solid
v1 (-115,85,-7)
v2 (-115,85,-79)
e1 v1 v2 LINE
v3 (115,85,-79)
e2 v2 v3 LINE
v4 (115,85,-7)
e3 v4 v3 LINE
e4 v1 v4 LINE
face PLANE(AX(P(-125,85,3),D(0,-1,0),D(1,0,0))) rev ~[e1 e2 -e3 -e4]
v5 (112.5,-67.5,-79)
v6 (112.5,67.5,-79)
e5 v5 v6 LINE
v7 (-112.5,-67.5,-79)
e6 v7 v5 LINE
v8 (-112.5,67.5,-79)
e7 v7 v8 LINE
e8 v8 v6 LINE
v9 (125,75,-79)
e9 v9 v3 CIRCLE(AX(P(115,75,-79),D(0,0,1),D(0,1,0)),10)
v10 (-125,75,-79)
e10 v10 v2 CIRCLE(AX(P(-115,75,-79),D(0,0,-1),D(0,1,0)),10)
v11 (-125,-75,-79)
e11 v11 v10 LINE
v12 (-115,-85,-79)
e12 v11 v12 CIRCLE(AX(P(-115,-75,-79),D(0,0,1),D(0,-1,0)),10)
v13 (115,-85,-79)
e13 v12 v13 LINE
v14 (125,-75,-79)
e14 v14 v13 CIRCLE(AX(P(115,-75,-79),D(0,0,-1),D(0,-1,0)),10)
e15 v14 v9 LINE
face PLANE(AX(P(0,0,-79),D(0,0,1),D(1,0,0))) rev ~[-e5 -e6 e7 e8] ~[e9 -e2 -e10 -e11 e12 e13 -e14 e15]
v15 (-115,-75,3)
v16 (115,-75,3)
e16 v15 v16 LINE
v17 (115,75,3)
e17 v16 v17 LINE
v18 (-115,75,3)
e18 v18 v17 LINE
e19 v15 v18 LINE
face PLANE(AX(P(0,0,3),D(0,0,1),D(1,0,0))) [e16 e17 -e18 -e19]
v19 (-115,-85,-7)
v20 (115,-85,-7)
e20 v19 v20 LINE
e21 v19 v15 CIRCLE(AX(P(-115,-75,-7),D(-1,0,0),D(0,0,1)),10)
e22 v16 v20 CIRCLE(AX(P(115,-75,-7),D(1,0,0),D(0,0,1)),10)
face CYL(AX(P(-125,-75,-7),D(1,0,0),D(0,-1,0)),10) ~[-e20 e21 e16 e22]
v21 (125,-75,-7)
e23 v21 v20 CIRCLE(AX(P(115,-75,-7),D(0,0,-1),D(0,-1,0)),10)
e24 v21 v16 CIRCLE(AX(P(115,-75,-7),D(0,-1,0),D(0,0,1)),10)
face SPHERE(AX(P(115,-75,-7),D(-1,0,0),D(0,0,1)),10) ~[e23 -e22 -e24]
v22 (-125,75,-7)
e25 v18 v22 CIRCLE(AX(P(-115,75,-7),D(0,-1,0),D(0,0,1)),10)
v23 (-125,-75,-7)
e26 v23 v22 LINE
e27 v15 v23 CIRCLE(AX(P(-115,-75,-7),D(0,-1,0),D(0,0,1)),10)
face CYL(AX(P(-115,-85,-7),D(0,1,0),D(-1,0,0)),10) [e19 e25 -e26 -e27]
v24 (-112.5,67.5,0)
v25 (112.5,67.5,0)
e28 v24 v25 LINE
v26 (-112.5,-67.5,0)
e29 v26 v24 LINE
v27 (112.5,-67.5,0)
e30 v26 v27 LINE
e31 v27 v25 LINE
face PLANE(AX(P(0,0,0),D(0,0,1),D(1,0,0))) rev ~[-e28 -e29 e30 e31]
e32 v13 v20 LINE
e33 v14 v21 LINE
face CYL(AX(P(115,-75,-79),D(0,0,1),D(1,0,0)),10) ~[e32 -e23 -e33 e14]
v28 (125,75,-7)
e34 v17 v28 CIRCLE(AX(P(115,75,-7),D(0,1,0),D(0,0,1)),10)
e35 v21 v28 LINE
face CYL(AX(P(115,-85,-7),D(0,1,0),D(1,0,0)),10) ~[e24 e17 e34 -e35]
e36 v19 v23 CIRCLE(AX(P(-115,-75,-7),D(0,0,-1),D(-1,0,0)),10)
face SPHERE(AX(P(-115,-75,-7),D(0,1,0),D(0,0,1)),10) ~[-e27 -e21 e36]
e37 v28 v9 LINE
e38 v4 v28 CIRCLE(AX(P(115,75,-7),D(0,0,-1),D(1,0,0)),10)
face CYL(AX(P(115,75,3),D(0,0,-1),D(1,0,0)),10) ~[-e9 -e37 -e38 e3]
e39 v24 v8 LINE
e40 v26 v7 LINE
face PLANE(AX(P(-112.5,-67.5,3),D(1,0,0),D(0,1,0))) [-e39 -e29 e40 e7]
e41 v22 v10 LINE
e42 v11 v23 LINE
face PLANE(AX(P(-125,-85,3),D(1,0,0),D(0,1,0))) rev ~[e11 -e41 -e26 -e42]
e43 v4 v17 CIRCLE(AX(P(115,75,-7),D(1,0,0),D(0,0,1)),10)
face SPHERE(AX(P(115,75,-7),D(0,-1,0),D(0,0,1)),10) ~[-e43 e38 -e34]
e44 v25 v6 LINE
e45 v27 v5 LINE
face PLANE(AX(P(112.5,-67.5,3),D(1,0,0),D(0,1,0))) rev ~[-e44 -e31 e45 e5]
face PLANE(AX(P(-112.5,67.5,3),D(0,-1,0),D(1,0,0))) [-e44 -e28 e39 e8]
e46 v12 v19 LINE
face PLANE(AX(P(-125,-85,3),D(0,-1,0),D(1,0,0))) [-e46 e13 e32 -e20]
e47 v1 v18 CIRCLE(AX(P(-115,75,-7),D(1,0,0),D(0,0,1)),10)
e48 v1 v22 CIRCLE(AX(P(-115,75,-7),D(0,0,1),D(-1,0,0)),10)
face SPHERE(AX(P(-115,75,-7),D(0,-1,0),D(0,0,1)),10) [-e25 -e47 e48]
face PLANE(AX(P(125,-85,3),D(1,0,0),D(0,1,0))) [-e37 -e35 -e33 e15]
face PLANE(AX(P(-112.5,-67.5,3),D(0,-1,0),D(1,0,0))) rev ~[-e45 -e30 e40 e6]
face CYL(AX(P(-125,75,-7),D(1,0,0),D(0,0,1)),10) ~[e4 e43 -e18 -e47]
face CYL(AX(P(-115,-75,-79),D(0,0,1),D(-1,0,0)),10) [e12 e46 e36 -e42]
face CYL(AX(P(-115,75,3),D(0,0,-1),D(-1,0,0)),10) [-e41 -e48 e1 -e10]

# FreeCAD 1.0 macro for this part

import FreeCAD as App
import Part
import Sketcher
from FreeCAD import Vector
Q = App.Units.Quantity


def edges_at(feature, points):
    """Names of the edges that pass closest to the given points."""
    edges = feature.Shape.Edges
    near = lambda p: min(range(len(edges)), key=lambda i: edges[i].distToShape(Part.Vertex(*p))[0])
    return sorted({f"Edge{near(p) + 1}" for p in points})

doc = App.newDocument("Part")
params = doc.addObject("Spreadsheet::Sheet", "Params")
for row, (alias, value) in enumerate([
    ("sketch1_width", "250 mm"),
    ("sketch1_height", "170 mm"),
    ("pad1_length", "3 mm"),
    ("sketch2_width", "250 mm"),
    ("sketch2_width2", "225 mm"),
    ("sketch2_height", "170 mm"),
    ("sketch2_height2", "135 mm"),
    ("pad2_length", "82 mm"),
    ("fillet_radius", "10 mm"),
], start=1):
    params.set(f"A{row}", alias)
    params.set(f"B{row}", "=" + value)
    params.setAlias(f"B{row}", alias)

body = doc.addObject("PartDesign::Body", "Body")

# Sketch on XY plane
sketch1 = body.newObject("Sketcher::SketchObject", "Sketch")
sketch1.AttachmentSupport = (doc.getObject("XY_Plane"), [""])
sketch1.MapMode = "FlatFace"
sketch1.addGeometry([
    Part.LineSegment(Vector(-125, 85, 0), Vector(-125, -85, 0)),
    Part.LineSegment(Vector(-125, -85, 0), Vector(125, -85, 0)),
    Part.LineSegment(Vector(125, -85, 0), Vector(125, 85, 0)),
    Part.LineSegment(Vector(125, 85, 0), Vector(-125, 85, 0)),
], False)
sketch1.addConstraint([
    Sketcher.Constraint("Coincident", 0, 2, 1, 1),
    Sketcher.Constraint("Coincident", 1, 2, 2, 1),
    Sketcher.Constraint("Coincident", 2, 2, 3, 1),
    Sketcher.Constraint("Coincident", 3, 2, 0, 1),
    Sketcher.Constraint("Vertical", 0),
    Sketcher.Constraint("Horizontal", 1),
    Sketcher.Constraint("Vertical", 2),
    Sketcher.Constraint("Horizontal", 3),
    Sketcher.Constraint("Symmetric", 0, 2, 2, 2, -1, 1),
    Sketcher.Constraint("DistanceX", 1, 1, 1, 2, Q("250 mm")),
    Sketcher.Constraint("DistanceY", 0, 2, 0, 1, Q("170 mm")),
])
sketch1.setExpression("Constraints[9]", "Params.sketch1_width")
sketch1.setExpression("Constraints[10]", "Params.sketch1_height")
pad1 = body.newObject("PartDesign::Pad", "Pad")
pad1.Profile = sketch1
pad1.setExpression("Length", "Params.pad1_length")

# Sketch on XY plane
sketch2 = body.newObject("Sketcher::SketchObject", "Sketch001")
sketch2.AttachmentSupport = (doc.getObject("XY_Plane"), [""])
sketch2.MapMode = "FlatFace"
sketch2.AttachmentOffset = App.Placement(Vector(0, 0, 3), App.Rotation())
sketch2.addGeometry([
    Part.LineSegment(Vector(-125, 85, 0), Vector(-125, -85, 0)),  # 0
    Part.LineSegment(Vector(-125, -85, 0), Vector(125, -85, 0)),  # 1
    Part.LineSegment(Vector(125, -85, 0), Vector(125, 85, 0)),  # 2
    Part.LineSegment(Vector(125, 85, 0), Vector(-125, 85, 0)),  # 3
    Part.LineSegment(Vector(112, -68, 0), Vector(-112, -68, 0)),  # 4
    Part.LineSegment(Vector(-112, -68, 0), Vector(-112, 68, 0)),  # 5
    Part.LineSegment(Vector(-112, 68, 0), Vector(112, 68, 0)),  # 6
    Part.LineSegment(Vector(112, 68, 0), Vector(112, -68, 0)),  # 7
], False)
sketch2.addConstraint([
    Sketcher.Constraint("Coincident", 0, 2, 1, 1),
    Sketcher.Constraint("Coincident", 1, 2, 2, 1),
    Sketcher.Constraint("Coincident", 2, 2, 3, 1),
    Sketcher.Constraint("Coincident", 3, 2, 0, 1),
    Sketcher.Constraint("Coincident", 4, 2, 5, 1),
    Sketcher.Constraint("Coincident", 5, 2, 6, 1),
    Sketcher.Constraint("Coincident", 6, 2, 7, 1),
    Sketcher.Constraint("Coincident", 7, 2, 4, 1),
    Sketcher.Constraint("Vertical", 0),
    Sketcher.Constraint("Horizontal", 1),
    Sketcher.Constraint("Vertical", 2),
    Sketcher.Constraint("Horizontal", 3),
    Sketcher.Constraint("Horizontal", 4),
    Sketcher.Constraint("Vertical", 5),
    Sketcher.Constraint("Horizontal", 6),
    Sketcher.Constraint("Vertical", 7),
    Sketcher.Constraint("Symmetric", 0, 2, 2, 2, -1, 1),
    Sketcher.Constraint("Symmetric", 4, 2, 6, 2, -1, 1),
    Sketcher.Constraint("DistanceX", 1, 1, 1, 2, Q("250 mm")),
    Sketcher.Constraint("DistanceX", 4, 2, 4, 1, Q("225 mm")),
    Sketcher.Constraint("DistanceY", 0, 2, 0, 1, Q("170 mm")),
    Sketcher.Constraint("DistanceY", 5, 1, 5, 2, Q("135 mm")),
])
sketch2.setExpression("Constraints[18]", "Params.sketch2_width")
sketch2.setExpression("Constraints[19]", "Params.sketch2_width2")
sketch2.setExpression("Constraints[20]", "Params.sketch2_height")
sketch2.setExpression("Constraints[21]", "Params.sketch2_height2")
pad2 = body.newObject("PartDesign::Pad", "Pad001")
pad2.Profile = sketch2
pad2.setExpression("Length", "Params.pad2_length")
pad2.Reversed = True
doc.recompute()

fillet = body.newObject("PartDesign::Fillet", "Fillet")
fillet.Base = (pad2, edges_at(pad2, [
    (-125, 0, 3),
    (0, -85, 3),
    (125, 0, 3),
    (0, 85, 3),
    (125, -85, -38),
    (125, 85, -38),
    (-125, -85, -38),
    (-125, 85, -38),
]))
fillet.setExpression("Radius", "Params.fillet_radius")

doc.recompute()
